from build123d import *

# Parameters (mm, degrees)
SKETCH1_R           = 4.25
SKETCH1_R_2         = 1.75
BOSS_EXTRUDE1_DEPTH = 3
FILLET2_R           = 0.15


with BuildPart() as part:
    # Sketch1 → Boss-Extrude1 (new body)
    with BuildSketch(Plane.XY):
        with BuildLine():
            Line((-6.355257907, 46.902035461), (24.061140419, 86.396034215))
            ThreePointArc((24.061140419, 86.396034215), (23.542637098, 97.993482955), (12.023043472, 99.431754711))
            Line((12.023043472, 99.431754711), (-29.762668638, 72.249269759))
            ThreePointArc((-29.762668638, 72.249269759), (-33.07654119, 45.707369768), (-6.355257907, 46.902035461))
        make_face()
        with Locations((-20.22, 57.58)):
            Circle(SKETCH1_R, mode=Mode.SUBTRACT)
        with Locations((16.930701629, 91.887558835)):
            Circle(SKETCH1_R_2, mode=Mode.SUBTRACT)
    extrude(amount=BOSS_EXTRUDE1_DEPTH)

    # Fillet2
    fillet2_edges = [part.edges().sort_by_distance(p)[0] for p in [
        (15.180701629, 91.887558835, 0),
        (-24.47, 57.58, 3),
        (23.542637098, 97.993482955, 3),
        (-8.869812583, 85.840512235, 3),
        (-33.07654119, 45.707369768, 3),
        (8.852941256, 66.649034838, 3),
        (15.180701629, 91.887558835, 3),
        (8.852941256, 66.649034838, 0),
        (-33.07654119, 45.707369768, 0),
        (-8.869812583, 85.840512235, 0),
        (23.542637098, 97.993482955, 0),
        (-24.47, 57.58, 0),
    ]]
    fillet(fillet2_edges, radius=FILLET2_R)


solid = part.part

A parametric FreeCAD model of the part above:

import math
import FreeCAD as App
import Part
import Sketcher
from FreeCAD import Vector


def edges_at(feature, points):
    """Names of the edges that pass closest to the given points."""
    edges = feature.Shape.Edges
    near = lambda p: min(range(len(edges)), key=lambda i: edges[i].distToShape(Part.Vertex(*p))[0])
    return sorted({f"Edge{near(p) + 1}" for p in points})

doc = App.newDocument("Part")
body = doc.addObject("PartDesign::Body", "Body")

# Sketch on XY plane
sketch1 = body.newObject("Sketcher::SketchObject", "Sketch")
sketch1.AttachmentSupport = (doc.getObject("XY_Plane"), [""])
sketch1.MapMode = "FlatFace"
sketch1.addGeometry(Part.LineSegment(Vector(-6.4, 46.9, 0), Vector(24.1, 86.4, 0)), False)
sketch1.addGeometry(Part.ArcOfCircle(Part.Circle(Vector(16.9, 91.9, 0), Vector(0, 0, 1), 9), math.radians(-38), math.radians(123)), False)
sketch1.addGeometry(Part.LineSegment(Vector(12, 99.4, 0), Vector(-29.8, 72.2, 0)), False)
sketch1.addGeometry(Part.ArcOfCircle(Part.Circle(Vector(-20.2, 57.6, 0), Vector(0, 0, 1), 17.5), math.radians(123), math.radians(322)), False)
sketch1.addGeometry(Part.Circle(Vector(-20.2, 57.6, 0), Vector(0, 0, 1), 4.2), False)
sketch1.addGeometry(Part.Circle(Vector(16.9, 91.9, 0), Vector(0, 0, 1), 1.8), False)
sketch1.addConstraint(Sketcher.Constraint("Tangent", 0, 2, 1, 1))
sketch1.addConstraint(Sketcher.Constraint("Tangent", 1, 2, 2, 1))
sketch1.addConstraint(Sketcher.Constraint("Tangent", 2, 2, 3, 1))
sketch1.addConstraint(Sketcher.Constraint("Tangent", 3, 2, 0, 1))
sketch1.addConstraint(Sketcher.Constraint("Coincident", 4, 3, 3, 3))
sketch1.addConstraint(Sketcher.Constraint("Coincident", 5, 3, 1, 3))
sketch1.addConstraint(Sketcher.Constraint("Radius", 1, 9.0))
sketch1.addConstraint(Sketcher.Constraint("Diameter", 4, 8.5))
sketch1.addConstraint(Sketcher.Constraint("Diameter", 5, 3.5))
sketch1.addConstraint(Sketcher.Constraint("Radius", 3, 17.5))
sketch1.addConstraint(Sketcher.Constraint("DistanceX", 3, 3, -1, 1, 20.22))
sketch1.addConstraint(Sketcher.Constraint("DistanceY", -1, 1, 3, 3, 57.58))
sketch1.addConstraint(Sketcher.Constraint("DistanceY", 3, 2, 0, 2, 39.493999))
sketch1.addConstraint(Sketcher.Constraint("DistanceX", -1, 1, 1, 3, 16.930702))
pad1 = body.newObject("PartDesign::Pad", "Pad")
pad1.Profile = sketch1
pad1.Length = 3
doc.recompute()

fillet = body.newObject("PartDesign::Fillet", "Fillet")
fillet.Base = (pad1, edges_at(pad1, [
    (15.181, 91.888, 0),
    (-24.47, 57.58, 3),
    (23.543, 97.993, 3),
    (-8.87, 85.841, 3),
    (-33.077, 45.707, 3),
    (8.853, 66.649, 3),
    (15.181, 91.888, 3),
    (8.853, 66.649, 0),
    (-33.077, 45.707, 0),
    (-8.87, 85.841, 0),
    (23.543, 97.993, 0),
    (-24.47, 57.58, 0),
]))
fillet.Radius = 0.15

doc.recompute()
